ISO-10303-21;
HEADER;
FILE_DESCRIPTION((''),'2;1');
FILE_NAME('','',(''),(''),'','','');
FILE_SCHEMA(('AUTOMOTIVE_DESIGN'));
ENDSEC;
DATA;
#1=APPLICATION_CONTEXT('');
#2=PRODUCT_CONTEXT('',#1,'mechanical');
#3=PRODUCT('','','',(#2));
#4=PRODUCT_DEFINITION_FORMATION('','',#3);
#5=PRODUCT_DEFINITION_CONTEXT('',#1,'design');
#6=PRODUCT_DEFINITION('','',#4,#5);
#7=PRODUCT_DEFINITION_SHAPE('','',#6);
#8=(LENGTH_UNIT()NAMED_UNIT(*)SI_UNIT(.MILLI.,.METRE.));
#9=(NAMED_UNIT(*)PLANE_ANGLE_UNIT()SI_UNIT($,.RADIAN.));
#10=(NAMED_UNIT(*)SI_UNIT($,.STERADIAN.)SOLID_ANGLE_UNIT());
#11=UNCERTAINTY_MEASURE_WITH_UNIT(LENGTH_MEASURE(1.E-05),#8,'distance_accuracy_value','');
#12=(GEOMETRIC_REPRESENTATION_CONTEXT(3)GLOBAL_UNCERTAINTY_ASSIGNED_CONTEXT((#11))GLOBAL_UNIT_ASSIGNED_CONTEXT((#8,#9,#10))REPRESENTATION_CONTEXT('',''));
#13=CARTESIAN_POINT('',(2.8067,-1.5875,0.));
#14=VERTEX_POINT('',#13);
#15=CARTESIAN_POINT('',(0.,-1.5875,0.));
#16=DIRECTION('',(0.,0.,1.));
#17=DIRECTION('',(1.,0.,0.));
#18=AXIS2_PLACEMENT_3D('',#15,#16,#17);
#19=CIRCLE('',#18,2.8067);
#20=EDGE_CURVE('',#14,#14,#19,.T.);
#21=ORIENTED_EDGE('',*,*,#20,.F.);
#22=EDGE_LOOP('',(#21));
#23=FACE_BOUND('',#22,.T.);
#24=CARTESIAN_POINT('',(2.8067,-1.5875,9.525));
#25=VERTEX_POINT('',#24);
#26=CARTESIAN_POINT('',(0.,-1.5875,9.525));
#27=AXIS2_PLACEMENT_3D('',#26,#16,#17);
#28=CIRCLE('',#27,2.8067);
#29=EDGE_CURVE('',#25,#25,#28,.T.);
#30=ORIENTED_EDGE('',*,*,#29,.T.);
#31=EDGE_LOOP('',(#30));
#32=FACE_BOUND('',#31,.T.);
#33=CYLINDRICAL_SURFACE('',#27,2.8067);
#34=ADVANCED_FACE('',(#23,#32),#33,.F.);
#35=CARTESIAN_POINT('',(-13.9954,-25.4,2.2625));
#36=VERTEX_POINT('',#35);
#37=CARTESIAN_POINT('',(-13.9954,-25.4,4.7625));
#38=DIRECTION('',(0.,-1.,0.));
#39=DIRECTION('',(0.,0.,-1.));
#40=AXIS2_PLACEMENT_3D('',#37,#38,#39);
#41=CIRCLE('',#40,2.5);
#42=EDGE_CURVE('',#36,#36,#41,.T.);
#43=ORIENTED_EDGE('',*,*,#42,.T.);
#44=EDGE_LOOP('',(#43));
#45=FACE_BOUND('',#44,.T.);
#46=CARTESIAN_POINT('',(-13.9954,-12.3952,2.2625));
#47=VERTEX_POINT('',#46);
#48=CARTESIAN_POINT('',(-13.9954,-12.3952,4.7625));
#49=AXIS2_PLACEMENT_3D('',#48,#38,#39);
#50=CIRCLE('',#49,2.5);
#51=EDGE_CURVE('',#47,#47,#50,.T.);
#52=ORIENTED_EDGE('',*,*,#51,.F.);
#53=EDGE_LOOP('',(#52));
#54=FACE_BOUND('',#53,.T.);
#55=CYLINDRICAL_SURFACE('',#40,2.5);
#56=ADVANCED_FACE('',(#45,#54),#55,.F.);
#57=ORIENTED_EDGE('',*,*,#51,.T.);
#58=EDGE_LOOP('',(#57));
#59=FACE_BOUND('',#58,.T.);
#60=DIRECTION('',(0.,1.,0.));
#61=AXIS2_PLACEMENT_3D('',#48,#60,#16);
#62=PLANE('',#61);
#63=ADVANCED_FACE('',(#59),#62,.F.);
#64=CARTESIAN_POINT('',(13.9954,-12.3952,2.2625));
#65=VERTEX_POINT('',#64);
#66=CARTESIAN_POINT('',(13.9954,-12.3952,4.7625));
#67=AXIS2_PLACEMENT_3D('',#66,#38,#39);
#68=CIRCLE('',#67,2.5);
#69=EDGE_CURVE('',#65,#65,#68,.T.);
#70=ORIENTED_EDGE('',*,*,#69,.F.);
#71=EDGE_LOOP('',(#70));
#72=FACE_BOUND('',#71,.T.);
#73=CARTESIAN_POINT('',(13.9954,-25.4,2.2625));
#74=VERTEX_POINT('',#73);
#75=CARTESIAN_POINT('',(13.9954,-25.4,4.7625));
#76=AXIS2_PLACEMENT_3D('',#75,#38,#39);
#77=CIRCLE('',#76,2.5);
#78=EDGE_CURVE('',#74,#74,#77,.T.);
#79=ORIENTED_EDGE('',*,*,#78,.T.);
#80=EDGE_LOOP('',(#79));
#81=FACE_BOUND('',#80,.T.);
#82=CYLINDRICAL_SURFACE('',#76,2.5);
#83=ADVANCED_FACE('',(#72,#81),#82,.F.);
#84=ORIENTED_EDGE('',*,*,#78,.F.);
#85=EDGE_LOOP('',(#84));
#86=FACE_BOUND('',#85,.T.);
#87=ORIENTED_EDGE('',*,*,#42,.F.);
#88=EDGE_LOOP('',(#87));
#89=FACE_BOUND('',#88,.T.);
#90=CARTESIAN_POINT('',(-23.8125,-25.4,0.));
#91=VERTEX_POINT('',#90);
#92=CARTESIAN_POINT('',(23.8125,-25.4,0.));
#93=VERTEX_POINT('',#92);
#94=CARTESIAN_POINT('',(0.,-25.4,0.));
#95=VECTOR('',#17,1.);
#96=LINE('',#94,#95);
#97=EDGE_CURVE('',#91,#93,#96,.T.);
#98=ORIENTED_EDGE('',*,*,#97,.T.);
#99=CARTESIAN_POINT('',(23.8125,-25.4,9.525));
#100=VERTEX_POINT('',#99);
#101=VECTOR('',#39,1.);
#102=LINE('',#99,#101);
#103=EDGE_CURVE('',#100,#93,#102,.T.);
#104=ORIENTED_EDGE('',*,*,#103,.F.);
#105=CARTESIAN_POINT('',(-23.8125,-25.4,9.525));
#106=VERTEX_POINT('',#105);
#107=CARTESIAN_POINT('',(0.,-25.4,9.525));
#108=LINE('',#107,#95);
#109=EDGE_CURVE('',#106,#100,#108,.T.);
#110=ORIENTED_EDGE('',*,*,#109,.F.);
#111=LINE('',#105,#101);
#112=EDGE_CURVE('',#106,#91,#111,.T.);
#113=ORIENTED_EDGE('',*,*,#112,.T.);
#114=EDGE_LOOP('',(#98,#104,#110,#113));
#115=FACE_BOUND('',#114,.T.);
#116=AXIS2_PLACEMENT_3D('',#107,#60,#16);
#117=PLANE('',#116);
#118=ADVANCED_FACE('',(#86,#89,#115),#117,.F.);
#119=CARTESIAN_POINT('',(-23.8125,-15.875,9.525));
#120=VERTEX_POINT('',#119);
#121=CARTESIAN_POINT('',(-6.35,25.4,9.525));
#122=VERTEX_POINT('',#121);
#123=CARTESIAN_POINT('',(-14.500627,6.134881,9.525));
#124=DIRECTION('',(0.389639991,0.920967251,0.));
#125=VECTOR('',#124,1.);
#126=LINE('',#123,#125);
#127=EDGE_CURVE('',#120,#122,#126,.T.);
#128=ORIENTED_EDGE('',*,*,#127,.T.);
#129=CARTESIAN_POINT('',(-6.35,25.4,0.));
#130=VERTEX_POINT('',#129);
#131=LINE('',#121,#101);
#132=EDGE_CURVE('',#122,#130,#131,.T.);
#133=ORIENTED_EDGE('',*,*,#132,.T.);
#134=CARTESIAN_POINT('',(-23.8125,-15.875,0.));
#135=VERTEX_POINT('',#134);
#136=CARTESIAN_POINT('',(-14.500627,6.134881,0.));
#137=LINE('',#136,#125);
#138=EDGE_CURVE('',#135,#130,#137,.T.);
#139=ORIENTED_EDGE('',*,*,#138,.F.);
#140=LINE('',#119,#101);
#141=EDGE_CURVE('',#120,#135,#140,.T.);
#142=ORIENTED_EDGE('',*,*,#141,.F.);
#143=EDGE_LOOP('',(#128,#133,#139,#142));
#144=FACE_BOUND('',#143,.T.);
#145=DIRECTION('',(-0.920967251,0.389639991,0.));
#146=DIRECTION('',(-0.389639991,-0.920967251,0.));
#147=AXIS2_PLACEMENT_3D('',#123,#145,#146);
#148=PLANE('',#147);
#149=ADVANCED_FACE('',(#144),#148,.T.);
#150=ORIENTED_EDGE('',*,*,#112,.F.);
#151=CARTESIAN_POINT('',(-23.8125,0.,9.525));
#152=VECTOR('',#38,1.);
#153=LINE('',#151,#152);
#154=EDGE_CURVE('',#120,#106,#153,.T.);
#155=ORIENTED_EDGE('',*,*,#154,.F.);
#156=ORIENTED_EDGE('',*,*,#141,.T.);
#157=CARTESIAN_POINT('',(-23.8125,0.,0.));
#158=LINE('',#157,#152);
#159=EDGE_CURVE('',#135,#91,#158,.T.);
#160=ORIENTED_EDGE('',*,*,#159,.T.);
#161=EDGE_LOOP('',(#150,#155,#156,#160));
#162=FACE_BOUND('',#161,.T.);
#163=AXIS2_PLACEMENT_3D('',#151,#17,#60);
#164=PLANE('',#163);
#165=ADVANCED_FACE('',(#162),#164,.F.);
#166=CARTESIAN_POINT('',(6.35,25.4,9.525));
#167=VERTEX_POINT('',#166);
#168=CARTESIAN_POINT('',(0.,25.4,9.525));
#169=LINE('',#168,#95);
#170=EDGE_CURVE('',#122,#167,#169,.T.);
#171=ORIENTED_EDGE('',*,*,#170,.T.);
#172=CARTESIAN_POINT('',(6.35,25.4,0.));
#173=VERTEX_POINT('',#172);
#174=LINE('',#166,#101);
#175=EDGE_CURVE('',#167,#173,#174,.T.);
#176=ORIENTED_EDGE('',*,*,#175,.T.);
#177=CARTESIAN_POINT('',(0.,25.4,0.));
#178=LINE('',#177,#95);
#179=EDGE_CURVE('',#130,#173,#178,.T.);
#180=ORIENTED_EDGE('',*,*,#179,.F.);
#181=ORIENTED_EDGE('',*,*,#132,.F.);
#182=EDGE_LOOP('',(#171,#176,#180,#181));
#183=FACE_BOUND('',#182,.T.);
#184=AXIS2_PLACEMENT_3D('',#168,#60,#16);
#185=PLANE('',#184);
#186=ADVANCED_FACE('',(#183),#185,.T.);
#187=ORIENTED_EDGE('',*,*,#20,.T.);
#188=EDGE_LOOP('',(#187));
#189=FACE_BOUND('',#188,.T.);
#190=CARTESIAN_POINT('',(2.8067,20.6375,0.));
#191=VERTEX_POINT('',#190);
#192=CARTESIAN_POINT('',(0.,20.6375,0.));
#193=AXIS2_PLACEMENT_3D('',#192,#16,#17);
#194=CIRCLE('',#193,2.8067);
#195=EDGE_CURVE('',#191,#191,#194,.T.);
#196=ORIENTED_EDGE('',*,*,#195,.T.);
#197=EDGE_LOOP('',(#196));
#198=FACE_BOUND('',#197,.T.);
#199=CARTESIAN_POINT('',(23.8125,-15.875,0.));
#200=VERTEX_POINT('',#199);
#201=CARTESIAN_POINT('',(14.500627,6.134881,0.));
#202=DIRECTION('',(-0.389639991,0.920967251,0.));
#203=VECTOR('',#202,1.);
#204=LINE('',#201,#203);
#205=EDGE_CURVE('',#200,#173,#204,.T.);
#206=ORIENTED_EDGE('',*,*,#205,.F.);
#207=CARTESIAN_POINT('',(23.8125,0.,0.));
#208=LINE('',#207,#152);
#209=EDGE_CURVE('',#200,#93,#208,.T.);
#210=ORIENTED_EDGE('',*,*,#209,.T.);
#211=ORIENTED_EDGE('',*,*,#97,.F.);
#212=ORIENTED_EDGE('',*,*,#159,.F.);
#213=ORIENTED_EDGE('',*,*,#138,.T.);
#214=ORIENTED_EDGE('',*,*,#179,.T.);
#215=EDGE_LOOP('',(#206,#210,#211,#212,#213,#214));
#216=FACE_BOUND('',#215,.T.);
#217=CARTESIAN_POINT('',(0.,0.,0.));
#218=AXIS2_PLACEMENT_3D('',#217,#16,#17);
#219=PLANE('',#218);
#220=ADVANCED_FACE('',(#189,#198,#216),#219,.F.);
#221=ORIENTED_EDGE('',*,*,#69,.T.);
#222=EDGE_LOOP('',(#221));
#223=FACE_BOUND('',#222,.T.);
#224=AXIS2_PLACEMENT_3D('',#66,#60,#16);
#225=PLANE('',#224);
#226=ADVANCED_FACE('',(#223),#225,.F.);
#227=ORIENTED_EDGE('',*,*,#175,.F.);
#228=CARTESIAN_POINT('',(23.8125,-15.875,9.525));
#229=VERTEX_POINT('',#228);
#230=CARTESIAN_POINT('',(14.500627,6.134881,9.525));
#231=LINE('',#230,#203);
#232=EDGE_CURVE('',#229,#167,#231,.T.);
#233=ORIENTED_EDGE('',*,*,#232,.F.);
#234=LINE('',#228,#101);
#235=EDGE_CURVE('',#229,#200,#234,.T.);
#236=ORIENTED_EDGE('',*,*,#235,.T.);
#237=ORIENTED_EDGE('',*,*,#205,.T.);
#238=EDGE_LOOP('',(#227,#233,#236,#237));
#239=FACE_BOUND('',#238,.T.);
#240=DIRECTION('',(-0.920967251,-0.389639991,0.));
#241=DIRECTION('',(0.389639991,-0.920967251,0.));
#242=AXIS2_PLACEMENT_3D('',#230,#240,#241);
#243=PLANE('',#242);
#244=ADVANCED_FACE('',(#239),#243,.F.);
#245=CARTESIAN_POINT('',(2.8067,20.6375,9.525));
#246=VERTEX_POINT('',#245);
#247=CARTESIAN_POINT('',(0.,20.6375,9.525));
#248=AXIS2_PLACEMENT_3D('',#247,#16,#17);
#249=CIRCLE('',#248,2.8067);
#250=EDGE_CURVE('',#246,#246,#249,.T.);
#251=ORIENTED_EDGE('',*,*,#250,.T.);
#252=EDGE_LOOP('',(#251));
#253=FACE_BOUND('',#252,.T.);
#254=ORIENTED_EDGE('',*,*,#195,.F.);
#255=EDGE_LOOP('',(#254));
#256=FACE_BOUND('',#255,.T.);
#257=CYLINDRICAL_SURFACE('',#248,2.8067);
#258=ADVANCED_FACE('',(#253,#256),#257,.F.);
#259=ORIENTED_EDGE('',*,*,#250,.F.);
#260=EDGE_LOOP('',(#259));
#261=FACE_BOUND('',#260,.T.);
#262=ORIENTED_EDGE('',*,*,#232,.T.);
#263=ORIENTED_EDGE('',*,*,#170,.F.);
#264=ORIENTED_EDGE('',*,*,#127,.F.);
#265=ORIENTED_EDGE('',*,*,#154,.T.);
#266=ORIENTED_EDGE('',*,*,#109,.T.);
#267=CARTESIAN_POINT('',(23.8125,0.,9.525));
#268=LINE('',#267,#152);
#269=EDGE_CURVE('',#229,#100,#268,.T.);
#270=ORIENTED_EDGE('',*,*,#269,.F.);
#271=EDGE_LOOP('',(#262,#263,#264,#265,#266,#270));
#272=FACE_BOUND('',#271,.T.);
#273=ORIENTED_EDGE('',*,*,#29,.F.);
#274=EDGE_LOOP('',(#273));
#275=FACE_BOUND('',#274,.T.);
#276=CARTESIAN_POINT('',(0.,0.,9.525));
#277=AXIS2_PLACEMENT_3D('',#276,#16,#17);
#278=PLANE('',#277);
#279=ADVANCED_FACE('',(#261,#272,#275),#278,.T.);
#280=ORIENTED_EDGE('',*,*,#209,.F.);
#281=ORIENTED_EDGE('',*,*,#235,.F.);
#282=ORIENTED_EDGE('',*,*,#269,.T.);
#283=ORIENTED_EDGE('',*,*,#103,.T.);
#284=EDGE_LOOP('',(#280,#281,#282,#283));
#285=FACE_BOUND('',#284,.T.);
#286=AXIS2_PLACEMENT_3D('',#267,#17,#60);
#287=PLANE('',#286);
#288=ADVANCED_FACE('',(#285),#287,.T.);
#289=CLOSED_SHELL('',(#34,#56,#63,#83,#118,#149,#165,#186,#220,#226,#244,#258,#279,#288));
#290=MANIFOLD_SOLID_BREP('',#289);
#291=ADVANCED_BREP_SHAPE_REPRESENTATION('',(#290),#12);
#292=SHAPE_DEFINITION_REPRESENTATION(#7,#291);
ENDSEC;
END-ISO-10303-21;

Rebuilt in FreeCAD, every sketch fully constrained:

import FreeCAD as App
import Part
import Sketcher
Q = App.Units.Quantity

doc = App.newDocument("Part")
body = doc.addObject("PartDesign::Body", "Body")

# Sketch on XY plane
sketch1 = doc.addObject("Sketcher::SketchObject", "Sketch")
body.addObject(sketch1)
sketch1.AttachmentSupport = (doc.XY_Plane, [""])
sketch1.MapMode = "FlatFace"
sketch1.addGeometry([
    Part.LineSegment(App.Vector(24, -25, 0), App.Vector(24, -16, 0)),  # 0
    Part.LineSegment(App.Vector(24, -16, 0), App.Vector(6, 25, 0)),  # 1
    Part.LineSegment(App.Vector(6, 25, 0), App.Vector(-6, 25, 0)),  # 2
    Part.LineSegment(App.Vector(-6, 25, 0), App.Vector(-24, -16, 0)),  # 3
    Part.LineSegment(App.Vector(-24, -16, 0), App.Vector(-24, -25, 0)),  # 4
    Part.LineSegment(App.Vector(-24, -25, 0), App.Vector(24, -25, 0)),  # 5
], False)
sketch1.addConstraint([
    Sketcher.Constraint("Coincident", 0, 2, 1, 1),
    Sketcher.Constraint("Coincident", 1, 2, 2, 1),
    Sketcher.Constraint("Coincident", 2, 2, 3, 1),
    Sketcher.Constraint("Coincident", 3, 2, 4, 1),
    Sketcher.Constraint("Coincident", 4, 2, 5, 1),
    Sketcher.Constraint("Coincident", 5, 2, 0, 1),
    Sketcher.Constraint("Vertical", 0),
    Sketcher.Constraint("Horizontal", 2),
    Sketcher.Constraint("Vertical", 4),
    Sketcher.Constraint("Horizontal", 5),
    Sketcher.Constraint("Symmetric", 0, 2, 3, 2, -2),
    Sketcher.Constraint("Equal", 1, 3),
    Sketcher.Constraint("DistanceX", 2, 2, 2, 1, Q("0.5 in")),
    Sketcher.Constraint("DistanceY", -1, 1, 1, 2, Q("1 in")),
    Sketcher.Constraint("DistanceY", 4, 2, -1, 1, Q("1 in")),
    Sketcher.Constraint("DistanceX", 5, 1, 5, 2, Q("1.875 in")),
    Sketcher.Constraint("DistanceY", 0, 1, 0, 2, Q("0.375 in")),
])
pad1 = doc.addObject("PartDesign::Pad", "Pad")
body.addObject(pad1)
pad1.Profile = sketch1
pad1.Length = Q("0.375 in")

# Sketch on XY plane
sketch2 = doc.addObject("Sketcher::SketchObject", "Sketch001")
body.addObject(sketch2)
sketch2.AttachmentSupport = (doc.XY_Plane, [""])
sketch2.MapMode = "FlatFace"
sketch2.AttachmentOffset = App.Placement(App.Vector(0, 0, 0.375 * 25.4), App.Rotation())
sketch2.addGeometry([
    Part.Circle(App.Vector(0, 20.6, 0), App.Vector(0, 0, 1), 2.8),
    Part.Circle(App.Vector(0, -1.6, 0), App.Vector(0, 0, 1), 2.8),
], False)
sketch2.addConstraint([
    Sketcher.Constraint("Equal", 0, 1),
    Sketcher.Constraint("PointOnObject", 0, 3, -2),
    Sketcher.Constraint("PointOnObject", 1, 3, -2),
    Sketcher.Constraint("Diameter", 0, Q("0.221 in")),
    Sketcher.Constraint("DistanceY", -1, 1, 0, 3, Q("0.8125 in")),
    Sketcher.Constraint("DistanceY", 1, 3, -1, 1, Q("0.0625 in")),
])
doc.recompute()
hole = doc.addObject("PartDesign::Hole", "Hole")
body.addObject(hole)
hole.Profile = sketch2
hole.ThreadType = "None"
hole.Diameter = Q("0.221 in")
hole.DepthType = "ThroughAll"

# Sketch on XZ plane
sketch3 = doc.addObject("Sketcher::SketchObject", "Sketch002")
body.addObject(sketch3)
sketch3.AttachmentSupport = (doc.XZ_Plane, [""])
sketch3.MapMode = "FlatFace"
sketch3.AttachmentOffset = App.Placement(App.Vector(0, 0, 1 * 25.4), App.Rotation())
sketch3.addGeometry([
    Part.Circle(App.Vector(-14, 4.8, 0), App.Vector(0, 0, 1), 2.5),
    Part.Circle(App.Vector(14, 4.8, 0), App.Vector(0, 0, 1), 2.5),
], False)
sketch3.addConstraint([
    Sketcher.Constraint("Equal", 0, 1),
    Sketcher.Constraint("Symmetric", 0, 3, 1, 3, -2),
    Sketcher.Constraint("Diameter", 0, Q("5 mm")),
    Sketcher.Constraint("DistanceX", 0, 3, -1, 1, Q("0.551 in")),
    Sketcher.Constraint("DistanceY", -1, 1, 0, 3, Q("0.1875 in")),
])
doc.recompute()
hole2 = doc.addObject("PartDesign::Hole", "Hole001")
body.addObject(hole2)
hole2.Profile = sketch3
hole2.ThreadType = "None"
hole2.Diameter = 5
hole2.DepthType = "Dimension"
hole2.Depth = Q("0.512 in")
hole2.DrillPoint = "Flat"

doc.recompute()
